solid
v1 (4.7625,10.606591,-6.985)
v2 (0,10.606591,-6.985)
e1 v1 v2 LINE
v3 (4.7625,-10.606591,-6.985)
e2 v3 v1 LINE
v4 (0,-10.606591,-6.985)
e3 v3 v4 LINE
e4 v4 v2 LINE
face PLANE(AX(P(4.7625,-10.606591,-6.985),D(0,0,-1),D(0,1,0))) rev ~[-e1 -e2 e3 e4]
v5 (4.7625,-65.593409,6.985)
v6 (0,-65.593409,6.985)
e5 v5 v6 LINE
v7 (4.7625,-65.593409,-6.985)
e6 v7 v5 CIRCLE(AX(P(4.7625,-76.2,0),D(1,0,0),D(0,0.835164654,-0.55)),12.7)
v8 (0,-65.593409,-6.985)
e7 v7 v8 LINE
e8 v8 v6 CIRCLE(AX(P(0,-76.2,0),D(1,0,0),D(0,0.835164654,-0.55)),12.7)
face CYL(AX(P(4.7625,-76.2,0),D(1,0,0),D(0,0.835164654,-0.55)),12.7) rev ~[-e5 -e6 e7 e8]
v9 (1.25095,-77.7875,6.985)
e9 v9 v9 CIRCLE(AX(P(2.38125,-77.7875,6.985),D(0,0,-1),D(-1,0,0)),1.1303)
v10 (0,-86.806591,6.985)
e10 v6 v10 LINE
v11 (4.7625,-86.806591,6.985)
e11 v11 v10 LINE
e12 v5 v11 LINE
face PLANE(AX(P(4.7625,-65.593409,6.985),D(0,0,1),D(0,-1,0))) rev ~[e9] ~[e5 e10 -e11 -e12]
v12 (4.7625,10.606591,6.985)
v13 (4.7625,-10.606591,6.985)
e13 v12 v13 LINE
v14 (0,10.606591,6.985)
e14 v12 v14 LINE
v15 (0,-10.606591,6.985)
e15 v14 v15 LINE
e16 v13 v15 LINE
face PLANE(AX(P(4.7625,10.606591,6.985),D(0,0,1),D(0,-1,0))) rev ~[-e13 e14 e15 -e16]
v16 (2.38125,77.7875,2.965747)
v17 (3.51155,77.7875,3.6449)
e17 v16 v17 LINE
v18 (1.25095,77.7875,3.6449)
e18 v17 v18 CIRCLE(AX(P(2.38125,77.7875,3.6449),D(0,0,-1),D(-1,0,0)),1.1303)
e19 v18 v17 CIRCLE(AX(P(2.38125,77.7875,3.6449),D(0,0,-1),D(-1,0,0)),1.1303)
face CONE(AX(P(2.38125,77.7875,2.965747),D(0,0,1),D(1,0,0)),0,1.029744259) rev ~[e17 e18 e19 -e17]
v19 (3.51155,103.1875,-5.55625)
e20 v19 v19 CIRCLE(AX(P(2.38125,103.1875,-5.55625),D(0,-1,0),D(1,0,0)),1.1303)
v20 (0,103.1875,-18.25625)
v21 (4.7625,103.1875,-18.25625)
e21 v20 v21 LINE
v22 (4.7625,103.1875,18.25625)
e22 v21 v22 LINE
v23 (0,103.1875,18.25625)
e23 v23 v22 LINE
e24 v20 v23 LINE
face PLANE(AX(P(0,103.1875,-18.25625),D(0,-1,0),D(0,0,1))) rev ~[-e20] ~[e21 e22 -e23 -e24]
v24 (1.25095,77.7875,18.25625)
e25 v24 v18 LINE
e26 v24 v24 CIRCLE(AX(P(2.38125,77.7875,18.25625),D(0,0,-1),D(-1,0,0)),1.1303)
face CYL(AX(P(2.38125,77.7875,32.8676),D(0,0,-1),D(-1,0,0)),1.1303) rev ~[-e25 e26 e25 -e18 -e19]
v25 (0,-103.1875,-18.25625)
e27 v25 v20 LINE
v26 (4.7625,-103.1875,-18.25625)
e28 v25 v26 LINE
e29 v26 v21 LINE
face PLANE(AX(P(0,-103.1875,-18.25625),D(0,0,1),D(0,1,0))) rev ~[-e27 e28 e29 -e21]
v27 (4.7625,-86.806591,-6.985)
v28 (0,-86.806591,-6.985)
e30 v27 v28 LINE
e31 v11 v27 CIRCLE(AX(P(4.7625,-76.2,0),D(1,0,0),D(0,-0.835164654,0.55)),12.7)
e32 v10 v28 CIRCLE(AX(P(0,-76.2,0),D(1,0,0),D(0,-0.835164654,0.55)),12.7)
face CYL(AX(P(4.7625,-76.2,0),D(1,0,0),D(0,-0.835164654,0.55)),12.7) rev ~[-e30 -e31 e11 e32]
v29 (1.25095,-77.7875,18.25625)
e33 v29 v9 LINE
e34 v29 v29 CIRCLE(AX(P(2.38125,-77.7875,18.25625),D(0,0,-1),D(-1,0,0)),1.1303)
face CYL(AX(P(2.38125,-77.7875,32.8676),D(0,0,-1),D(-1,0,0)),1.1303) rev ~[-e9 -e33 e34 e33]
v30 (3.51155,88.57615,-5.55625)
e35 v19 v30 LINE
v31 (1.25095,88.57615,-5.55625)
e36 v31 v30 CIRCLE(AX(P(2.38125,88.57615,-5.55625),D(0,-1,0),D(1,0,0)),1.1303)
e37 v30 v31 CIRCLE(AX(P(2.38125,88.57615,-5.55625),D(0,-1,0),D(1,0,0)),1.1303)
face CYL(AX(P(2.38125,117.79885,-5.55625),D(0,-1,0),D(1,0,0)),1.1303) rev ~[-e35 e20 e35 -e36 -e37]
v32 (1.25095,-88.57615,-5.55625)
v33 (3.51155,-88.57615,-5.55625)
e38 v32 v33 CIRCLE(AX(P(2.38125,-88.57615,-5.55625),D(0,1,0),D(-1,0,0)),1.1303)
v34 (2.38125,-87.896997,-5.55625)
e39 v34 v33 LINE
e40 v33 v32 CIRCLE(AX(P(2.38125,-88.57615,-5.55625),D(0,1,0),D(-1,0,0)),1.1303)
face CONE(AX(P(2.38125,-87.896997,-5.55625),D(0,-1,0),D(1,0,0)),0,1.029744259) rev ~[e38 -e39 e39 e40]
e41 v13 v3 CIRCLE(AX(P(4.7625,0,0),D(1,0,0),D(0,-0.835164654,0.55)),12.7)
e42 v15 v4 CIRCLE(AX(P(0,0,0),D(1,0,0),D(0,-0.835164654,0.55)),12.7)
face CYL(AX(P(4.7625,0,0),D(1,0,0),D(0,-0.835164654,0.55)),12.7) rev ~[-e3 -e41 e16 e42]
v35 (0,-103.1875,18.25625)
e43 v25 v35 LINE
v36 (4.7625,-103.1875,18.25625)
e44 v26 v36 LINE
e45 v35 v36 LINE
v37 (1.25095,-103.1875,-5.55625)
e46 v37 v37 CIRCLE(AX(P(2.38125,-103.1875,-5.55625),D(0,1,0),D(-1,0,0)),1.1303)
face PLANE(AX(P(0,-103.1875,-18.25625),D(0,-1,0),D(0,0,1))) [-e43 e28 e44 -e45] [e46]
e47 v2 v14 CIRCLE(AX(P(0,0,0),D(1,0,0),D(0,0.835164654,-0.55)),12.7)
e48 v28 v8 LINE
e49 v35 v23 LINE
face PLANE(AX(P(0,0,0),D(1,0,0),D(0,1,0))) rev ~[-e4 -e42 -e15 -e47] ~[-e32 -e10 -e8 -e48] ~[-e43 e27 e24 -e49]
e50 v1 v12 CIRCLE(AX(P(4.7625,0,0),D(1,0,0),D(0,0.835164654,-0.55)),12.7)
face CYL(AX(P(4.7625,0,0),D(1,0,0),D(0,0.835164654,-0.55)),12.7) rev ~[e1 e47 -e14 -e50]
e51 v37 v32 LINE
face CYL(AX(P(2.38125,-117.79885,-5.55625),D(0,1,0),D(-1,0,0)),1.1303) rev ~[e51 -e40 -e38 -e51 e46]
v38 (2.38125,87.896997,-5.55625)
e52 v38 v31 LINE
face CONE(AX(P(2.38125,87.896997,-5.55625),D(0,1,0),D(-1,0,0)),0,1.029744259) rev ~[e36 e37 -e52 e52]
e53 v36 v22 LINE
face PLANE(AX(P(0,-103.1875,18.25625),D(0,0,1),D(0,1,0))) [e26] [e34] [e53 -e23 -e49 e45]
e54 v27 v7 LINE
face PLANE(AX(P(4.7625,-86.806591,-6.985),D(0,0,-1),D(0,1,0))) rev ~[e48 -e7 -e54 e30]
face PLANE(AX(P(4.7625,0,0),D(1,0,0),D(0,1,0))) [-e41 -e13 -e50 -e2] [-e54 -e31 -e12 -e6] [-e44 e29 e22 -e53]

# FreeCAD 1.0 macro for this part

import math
import FreeCAD as App
import Part
import Sketcher
Q = App.Units.Quantity

doc = App.newDocument("Part")
params = doc.addObject("Spreadsheet::Sheet", "Params")
for row, (alias, value) in enumerate([
    ("sketch1_width", "8.125 in"),
    ("sketch1_height", "1.4375 in"),
    ("pad1_length", "0.1875 in"),
    ("sketch2_diameter", "0.089 in"),
    ("hole_diameter", "0.089 in"),
    ("hole_depth", "14.61135 mm"),
    ("sketch3_diameter", "0.089 in"),
    ("hole2_diameter", "0.089 in"),
    ("hole2_depth", "14.61135 mm"),
    ("sketch4_diameter", "0.089 in"),
    ("hole3_diameter", "0.089 in"),
    ("hole3_depth", "14.61135 mm"),
    ("sketch5_radius", "0.5 in"),
    ("pocket1_length", "1 in"),
], start=1):
    params.set(f"A{row}", alias)
    params.set(f"B{row}", "=" + value)
    params.setAlias(f"B{row}", alias)

body = doc.addObject("PartDesign::Body", "Body")

# Sketch on YZ plane
sketch1 = body.newObject("Sketcher::SketchObject", "Sketch")
sketch1.AttachmentSupport = (doc.getObject("YZ_Plane"), [""])
sketch1.MapMode = "FlatFace"
sketch1.addGeometry(Part.LineSegment(App.Vector(-103, 18, 0), App.Vector(-103, -18, 0)), False)
sketch1.addGeometry(Part.LineSegment(App.Vector(-103, -18, 0), App.Vector(103, -18, 0)), False)
sketch1.addGeometry(Part.LineSegment(App.Vector(103, -18, 0), App.Vector(103, 18, 0)), False)
sketch1.addGeometry(Part.LineSegment(App.Vector(103, 18, 0), App.Vector(-103, 18, 0)), False)
sketch1.addConstraint(Sketcher.Constraint("Coincident", 0, 2, 1, 1))
sketch1.addConstraint(Sketcher.Constraint("Coincident", 1, 2, 2, 1))
sketch1.addConstraint(Sketcher.Constraint("Coincident", 2, 2, 3, 1))
sketch1.addConstraint(Sketcher.Constraint("Coincident", 3, 2, 0, 1))
sketch1.addConstraint(Sketcher.Constraint("Vertical", 0))
sketch1.addConstraint(Sketcher.Constraint("Horizontal", 1))
sketch1.addConstraint(Sketcher.Constraint("Vertical", 2))
sketch1.addConstraint(Sketcher.Constraint("Horizontal", 3))
sketch1.addConstraint(Sketcher.Constraint("Symmetric", 0, 2, 2, 2, -1, 1))
sketch1.addConstraint(Sketcher.Constraint("DistanceX", 1, 1, 1, 2, Q("8.125 in")))
sketch1.addConstraint(Sketcher.Constraint("DistanceY", 0, 2, 0, 1, Q("1.4375 in")))
sketch1.setExpression("Constraints[9]", "Params.sketch1_width")
sketch1.setExpression("Constraints[10]", "Params.sketch1_height")
pad1 = body.newObject("PartDesign::Pad", "Pad")
pad1.Profile = sketch1
pad1.setExpression("Length", "Params.pad1_length")

# Sketch on XY plane
sketch2 = body.newObject("Sketcher::SketchObject", "Sketch001")
sketch2.AttachmentSupport = (doc.getObject("XY_Plane"), [""])
sketch2.MapMode = "FlatFace"
sketch2.AttachmentOffset = App.Placement(App.Vector(0, 0, 0.71875 * 25.4), App.Rotation())
sketch2.addGeometry(Part.Circle(App.Vector(2.4, -77.8, 0), App.Vector(0, 0, 1), 1.1), False)
sketch2.addGeometry(Part.Circle(App.Vector(2.4, 77.8, 0), App.Vector(0, 0, 1), 1.1), False)
sketch2.addConstraint(Sketcher.Constraint("Equal", 0, 1))
sketch2.addConstraint(Sketcher.Constraint("Symmetric", 0, 3, 1, 3, -1))
sketch2.addConstraint(Sketcher.Constraint("Diameter", 0, Q("0.089 in")))
sketch2.addConstraint(Sketcher.Constraint("DistanceX", -1, 1, 0, 3, Q("0.09375 in")))
sketch2.addConstraint(Sketcher.Constraint("DistanceY", 0, 3, -1, 1, Q("3.0625 in")))
sketch2.setExpression("Constraints[2]", "Params.sketch2_diameter")
doc.recompute()
hole = body.newObject("PartDesign::Hole", "Hole")
hole.Profile = sketch2
hole.ThreadType = "None"
hole.setExpression("Diameter", "Params.hole_diameter")
hole.DepthType = "Dimension"
hole.setExpression("Depth", "Params.hole_depth")
hole.DrillPoint = "Angled"
hole.DrillPointAngle = 118

# Sketch on XZ plane
sketch3 = body.newObject("Sketcher::SketchObject", "Sketch002")
sketch3.AttachmentSupport = (doc.getObject("XZ_Plane"), [""])
sketch3.MapMode = "FlatFace"
sketch3.AttachmentOffset = App.Placement(App.Vector(0, 0, 4.0625 * 25.4), App.Rotation())
sketch3.addGeometry(Part.Circle(App.Vector(2.4, -5.6, 0), App.Vector(0, 0, 1), 1.1), False)
sketch3.addConstraint(Sketcher.Constraint("Diameter", 0, Q("0.089 in")))
sketch3.addConstraint(Sketcher.Constraint("DistanceX", -1, 1, 0, 3, Q("0.09375 in")))
sketch3.addConstraint(Sketcher.Constraint("DistanceY", 0, 3, -1, 1, Q("0.21875 in")))
sketch3.setExpression("Constraints[0]", "Params.sketch3_diameter")
doc.recompute()
hole2 = body.newObject("PartDesign::Hole", "Hole001")
hole2.Profile = sketch3
hole2.ThreadType = "None"
hole2.setExpression("Diameter", "Params.hole2_diameter")
hole2.DepthType = "Dimension"
hole2.setExpression("Depth", "Params.hole2_depth")
hole2.DrillPoint = "Angled"
hole2.DrillPointAngle = 118

# Sketch on XZ plane
sketch4 = body.newObject("Sketcher::SketchObject", "Sketch003")
sketch4.AttachmentSupport = (doc.getObject("XZ_Plane"), [""])
sketch4.MapMode = "FlatFace"
sketch4.AttachmentOffset = App.Placement(App.Vector(0, 0, -4.0625 * 25.4), App.Rotation())
sketch4.addGeometry(Part.Circle(App.Vector(2.4, -5.6, 0), App.Vector(0, 0, 1), 1.1), False)
sketch4.addConstraint(Sketcher.Constraint("Diameter", 0, Q("0.089 in")))
sketch4.addConstraint(Sketcher.Constraint("DistanceX", -1, 1, 0, 3, Q("0.09375 in")))
sketch4.addConstraint(Sketcher.Constraint("DistanceY", 0, 3, -1, 1, Q("0.21875 in")))
sketch4.setExpression("Constraints[0]", "Params.sketch4_diameter")
doc.recompute()
hole3 = body.newObject("PartDesign::Hole", "Hole002")
hole3.Profile = sketch4
hole3.ThreadType = "None"
hole3.setExpression("Diameter", "Params.hole3_diameter")
hole3.DepthType = "Dimension"
hole3.setExpression("Depth", "Params.hole3_depth")
hole3.DrillPoint = "Angled"
hole3.DrillPointAngle = 118
hole3.Reversed = True

# Sketch on YZ plane
sketch5 = body.newObject("Sketcher::SketchObject", "Sketch004")
sketch5.AttachmentSupport = (doc.getObject("YZ_Plane"), [""])
sketch5.MapMode = "FlatFace"
sketch5.AttachmentOffset = App.Placement(App.Vector(0, 0, 0.1875 * 25.4), App.Rotation())
sketch5.addGeometry(Part.LineSegment(App.Vector(-66, 7, 0), App.Vector(-87, 7, 0)), False)
sketch5.addGeometry(Part.ArcOfCircle(Part.Circle(App.Vector(-76, 0, 0), App.Vector(0, 0, 1), 13), math.radians(147), math.radians(213)), False)
sketch5.addGeometry(Part.LineSegment(App.Vector(-87, -7, 0), App.Vector(-66, -7, 0)), False)
sketch5.addGeometry(Part.ArcOfCircle(Part.Circle(App.Vector(-76, 0, 0), App.Vector(0, 0, 1), 13), math.radians(-33), math.radians(33)), False)
sketch5.addGeometry(Part.ArcOfCircle(Part.Circle(App.Vector(0, 0, 0), App.Vector(0, 0, 1), 13), math.radians(-33), math.radians(33)), False)
sketch5.addGeometry(Part.LineSegment(App.Vector(11, 7, 0), App.Vector(-11, 7, 0)), False)
sketch5.addGeometry(Part.ArcOfCircle(Part.Circle(App.Vector(0, 0, 0), App.Vector(0, 0, 1), 13), math.radians(147), math.radians(213)), False)
sketch5.addGeometry(Part.LineSegment(App.Vector(-11, -7, 0), App.Vector(11, -7, 0)), False)
sketch5.addConstraint(Sketcher.Constraint("Coincident", 0, 2, 1, 1))
sketch5.addConstraint(Sketcher.Constraint("Coincident", 1, 2, 2, 1))
sketch5.addConstraint(Sketcher.Constraint("Coincident", 2, 2, 3, 1))
sketch5.addConstraint(Sketcher.Constraint("Coincident", 3, 2, 0, 1))
sketch5.addConstraint(Sketcher.Constraint("Coincident", 4, 2, 5, 1))
sketch5.addConstraint(Sketcher.Constraint("Coincident", 5, 2, 6, 1))
sketch5.addConstraint(Sketcher.Constraint("Coincident", 6, 2, 7, 1))
sketch5.addConstraint(Sketcher.Constraint("Coincident", 7, 2, 4, 1))
sketch5.addConstraint(Sketcher.Constraint("Horizontal", 0))
sketch5.addConstraint(Sketcher.Constraint("Horizontal", 2))
sketch5.addConstraint(Sketcher.Constraint("Horizontal", 5))
sketch5.addConstraint(Sketcher.Constraint("Horizontal", 7))
sketch5.addConstraint(Sketcher.Constraint("Coincident", 4, 3, -1, 1))
sketch5.addConstraint(Sketcher.Constraint("Coincident", 6, 3, -1, 1))
sketch5.addConstraint(Sketcher.Constraint("Coincident", 3, 3, 1, 3))
sketch5.addConstraint(Sketcher.Constraint("Equal", 1, 3))
sketch5.addConstraint(Sketcher.Constraint("Equal", 3, 4))
sketch5.addConstraint(Sketcher.Constraint("Equal", 4, 6))
sketch5.addConstraint(Sketcher.Constraint("Symmetric", 0, 2, 1, 2, -1))
sketch5.addConstraint(Sketcher.Constraint("Horizontal", 3, 2, 4, 2))
sketch5.addConstraint(Sketcher.Constraint("Horizontal", 2, 2, 6, 2))
sketch5.addConstraint(Sketcher.Constraint("Radius", 1, Q("0.5 in")))
sketch5.addConstraint(Sketcher.Constraint("DistanceX", 1, 3, -1, 1, Q("3 in")))
sketch5.addConstraint(Sketcher.Constraint("DistanceY", 1, 2, 0, 2, Q("0.55 in")))
sketch5.setExpression("Constraints[21]", "Params.sketch5_radius")
pocket1 = body.newObject("PartDesign::Pocket", "Pocket")
pocket1.Profile = sketch5
pocket1.setExpression("Length", "Params.pocket1_length")

doc.recompute()
